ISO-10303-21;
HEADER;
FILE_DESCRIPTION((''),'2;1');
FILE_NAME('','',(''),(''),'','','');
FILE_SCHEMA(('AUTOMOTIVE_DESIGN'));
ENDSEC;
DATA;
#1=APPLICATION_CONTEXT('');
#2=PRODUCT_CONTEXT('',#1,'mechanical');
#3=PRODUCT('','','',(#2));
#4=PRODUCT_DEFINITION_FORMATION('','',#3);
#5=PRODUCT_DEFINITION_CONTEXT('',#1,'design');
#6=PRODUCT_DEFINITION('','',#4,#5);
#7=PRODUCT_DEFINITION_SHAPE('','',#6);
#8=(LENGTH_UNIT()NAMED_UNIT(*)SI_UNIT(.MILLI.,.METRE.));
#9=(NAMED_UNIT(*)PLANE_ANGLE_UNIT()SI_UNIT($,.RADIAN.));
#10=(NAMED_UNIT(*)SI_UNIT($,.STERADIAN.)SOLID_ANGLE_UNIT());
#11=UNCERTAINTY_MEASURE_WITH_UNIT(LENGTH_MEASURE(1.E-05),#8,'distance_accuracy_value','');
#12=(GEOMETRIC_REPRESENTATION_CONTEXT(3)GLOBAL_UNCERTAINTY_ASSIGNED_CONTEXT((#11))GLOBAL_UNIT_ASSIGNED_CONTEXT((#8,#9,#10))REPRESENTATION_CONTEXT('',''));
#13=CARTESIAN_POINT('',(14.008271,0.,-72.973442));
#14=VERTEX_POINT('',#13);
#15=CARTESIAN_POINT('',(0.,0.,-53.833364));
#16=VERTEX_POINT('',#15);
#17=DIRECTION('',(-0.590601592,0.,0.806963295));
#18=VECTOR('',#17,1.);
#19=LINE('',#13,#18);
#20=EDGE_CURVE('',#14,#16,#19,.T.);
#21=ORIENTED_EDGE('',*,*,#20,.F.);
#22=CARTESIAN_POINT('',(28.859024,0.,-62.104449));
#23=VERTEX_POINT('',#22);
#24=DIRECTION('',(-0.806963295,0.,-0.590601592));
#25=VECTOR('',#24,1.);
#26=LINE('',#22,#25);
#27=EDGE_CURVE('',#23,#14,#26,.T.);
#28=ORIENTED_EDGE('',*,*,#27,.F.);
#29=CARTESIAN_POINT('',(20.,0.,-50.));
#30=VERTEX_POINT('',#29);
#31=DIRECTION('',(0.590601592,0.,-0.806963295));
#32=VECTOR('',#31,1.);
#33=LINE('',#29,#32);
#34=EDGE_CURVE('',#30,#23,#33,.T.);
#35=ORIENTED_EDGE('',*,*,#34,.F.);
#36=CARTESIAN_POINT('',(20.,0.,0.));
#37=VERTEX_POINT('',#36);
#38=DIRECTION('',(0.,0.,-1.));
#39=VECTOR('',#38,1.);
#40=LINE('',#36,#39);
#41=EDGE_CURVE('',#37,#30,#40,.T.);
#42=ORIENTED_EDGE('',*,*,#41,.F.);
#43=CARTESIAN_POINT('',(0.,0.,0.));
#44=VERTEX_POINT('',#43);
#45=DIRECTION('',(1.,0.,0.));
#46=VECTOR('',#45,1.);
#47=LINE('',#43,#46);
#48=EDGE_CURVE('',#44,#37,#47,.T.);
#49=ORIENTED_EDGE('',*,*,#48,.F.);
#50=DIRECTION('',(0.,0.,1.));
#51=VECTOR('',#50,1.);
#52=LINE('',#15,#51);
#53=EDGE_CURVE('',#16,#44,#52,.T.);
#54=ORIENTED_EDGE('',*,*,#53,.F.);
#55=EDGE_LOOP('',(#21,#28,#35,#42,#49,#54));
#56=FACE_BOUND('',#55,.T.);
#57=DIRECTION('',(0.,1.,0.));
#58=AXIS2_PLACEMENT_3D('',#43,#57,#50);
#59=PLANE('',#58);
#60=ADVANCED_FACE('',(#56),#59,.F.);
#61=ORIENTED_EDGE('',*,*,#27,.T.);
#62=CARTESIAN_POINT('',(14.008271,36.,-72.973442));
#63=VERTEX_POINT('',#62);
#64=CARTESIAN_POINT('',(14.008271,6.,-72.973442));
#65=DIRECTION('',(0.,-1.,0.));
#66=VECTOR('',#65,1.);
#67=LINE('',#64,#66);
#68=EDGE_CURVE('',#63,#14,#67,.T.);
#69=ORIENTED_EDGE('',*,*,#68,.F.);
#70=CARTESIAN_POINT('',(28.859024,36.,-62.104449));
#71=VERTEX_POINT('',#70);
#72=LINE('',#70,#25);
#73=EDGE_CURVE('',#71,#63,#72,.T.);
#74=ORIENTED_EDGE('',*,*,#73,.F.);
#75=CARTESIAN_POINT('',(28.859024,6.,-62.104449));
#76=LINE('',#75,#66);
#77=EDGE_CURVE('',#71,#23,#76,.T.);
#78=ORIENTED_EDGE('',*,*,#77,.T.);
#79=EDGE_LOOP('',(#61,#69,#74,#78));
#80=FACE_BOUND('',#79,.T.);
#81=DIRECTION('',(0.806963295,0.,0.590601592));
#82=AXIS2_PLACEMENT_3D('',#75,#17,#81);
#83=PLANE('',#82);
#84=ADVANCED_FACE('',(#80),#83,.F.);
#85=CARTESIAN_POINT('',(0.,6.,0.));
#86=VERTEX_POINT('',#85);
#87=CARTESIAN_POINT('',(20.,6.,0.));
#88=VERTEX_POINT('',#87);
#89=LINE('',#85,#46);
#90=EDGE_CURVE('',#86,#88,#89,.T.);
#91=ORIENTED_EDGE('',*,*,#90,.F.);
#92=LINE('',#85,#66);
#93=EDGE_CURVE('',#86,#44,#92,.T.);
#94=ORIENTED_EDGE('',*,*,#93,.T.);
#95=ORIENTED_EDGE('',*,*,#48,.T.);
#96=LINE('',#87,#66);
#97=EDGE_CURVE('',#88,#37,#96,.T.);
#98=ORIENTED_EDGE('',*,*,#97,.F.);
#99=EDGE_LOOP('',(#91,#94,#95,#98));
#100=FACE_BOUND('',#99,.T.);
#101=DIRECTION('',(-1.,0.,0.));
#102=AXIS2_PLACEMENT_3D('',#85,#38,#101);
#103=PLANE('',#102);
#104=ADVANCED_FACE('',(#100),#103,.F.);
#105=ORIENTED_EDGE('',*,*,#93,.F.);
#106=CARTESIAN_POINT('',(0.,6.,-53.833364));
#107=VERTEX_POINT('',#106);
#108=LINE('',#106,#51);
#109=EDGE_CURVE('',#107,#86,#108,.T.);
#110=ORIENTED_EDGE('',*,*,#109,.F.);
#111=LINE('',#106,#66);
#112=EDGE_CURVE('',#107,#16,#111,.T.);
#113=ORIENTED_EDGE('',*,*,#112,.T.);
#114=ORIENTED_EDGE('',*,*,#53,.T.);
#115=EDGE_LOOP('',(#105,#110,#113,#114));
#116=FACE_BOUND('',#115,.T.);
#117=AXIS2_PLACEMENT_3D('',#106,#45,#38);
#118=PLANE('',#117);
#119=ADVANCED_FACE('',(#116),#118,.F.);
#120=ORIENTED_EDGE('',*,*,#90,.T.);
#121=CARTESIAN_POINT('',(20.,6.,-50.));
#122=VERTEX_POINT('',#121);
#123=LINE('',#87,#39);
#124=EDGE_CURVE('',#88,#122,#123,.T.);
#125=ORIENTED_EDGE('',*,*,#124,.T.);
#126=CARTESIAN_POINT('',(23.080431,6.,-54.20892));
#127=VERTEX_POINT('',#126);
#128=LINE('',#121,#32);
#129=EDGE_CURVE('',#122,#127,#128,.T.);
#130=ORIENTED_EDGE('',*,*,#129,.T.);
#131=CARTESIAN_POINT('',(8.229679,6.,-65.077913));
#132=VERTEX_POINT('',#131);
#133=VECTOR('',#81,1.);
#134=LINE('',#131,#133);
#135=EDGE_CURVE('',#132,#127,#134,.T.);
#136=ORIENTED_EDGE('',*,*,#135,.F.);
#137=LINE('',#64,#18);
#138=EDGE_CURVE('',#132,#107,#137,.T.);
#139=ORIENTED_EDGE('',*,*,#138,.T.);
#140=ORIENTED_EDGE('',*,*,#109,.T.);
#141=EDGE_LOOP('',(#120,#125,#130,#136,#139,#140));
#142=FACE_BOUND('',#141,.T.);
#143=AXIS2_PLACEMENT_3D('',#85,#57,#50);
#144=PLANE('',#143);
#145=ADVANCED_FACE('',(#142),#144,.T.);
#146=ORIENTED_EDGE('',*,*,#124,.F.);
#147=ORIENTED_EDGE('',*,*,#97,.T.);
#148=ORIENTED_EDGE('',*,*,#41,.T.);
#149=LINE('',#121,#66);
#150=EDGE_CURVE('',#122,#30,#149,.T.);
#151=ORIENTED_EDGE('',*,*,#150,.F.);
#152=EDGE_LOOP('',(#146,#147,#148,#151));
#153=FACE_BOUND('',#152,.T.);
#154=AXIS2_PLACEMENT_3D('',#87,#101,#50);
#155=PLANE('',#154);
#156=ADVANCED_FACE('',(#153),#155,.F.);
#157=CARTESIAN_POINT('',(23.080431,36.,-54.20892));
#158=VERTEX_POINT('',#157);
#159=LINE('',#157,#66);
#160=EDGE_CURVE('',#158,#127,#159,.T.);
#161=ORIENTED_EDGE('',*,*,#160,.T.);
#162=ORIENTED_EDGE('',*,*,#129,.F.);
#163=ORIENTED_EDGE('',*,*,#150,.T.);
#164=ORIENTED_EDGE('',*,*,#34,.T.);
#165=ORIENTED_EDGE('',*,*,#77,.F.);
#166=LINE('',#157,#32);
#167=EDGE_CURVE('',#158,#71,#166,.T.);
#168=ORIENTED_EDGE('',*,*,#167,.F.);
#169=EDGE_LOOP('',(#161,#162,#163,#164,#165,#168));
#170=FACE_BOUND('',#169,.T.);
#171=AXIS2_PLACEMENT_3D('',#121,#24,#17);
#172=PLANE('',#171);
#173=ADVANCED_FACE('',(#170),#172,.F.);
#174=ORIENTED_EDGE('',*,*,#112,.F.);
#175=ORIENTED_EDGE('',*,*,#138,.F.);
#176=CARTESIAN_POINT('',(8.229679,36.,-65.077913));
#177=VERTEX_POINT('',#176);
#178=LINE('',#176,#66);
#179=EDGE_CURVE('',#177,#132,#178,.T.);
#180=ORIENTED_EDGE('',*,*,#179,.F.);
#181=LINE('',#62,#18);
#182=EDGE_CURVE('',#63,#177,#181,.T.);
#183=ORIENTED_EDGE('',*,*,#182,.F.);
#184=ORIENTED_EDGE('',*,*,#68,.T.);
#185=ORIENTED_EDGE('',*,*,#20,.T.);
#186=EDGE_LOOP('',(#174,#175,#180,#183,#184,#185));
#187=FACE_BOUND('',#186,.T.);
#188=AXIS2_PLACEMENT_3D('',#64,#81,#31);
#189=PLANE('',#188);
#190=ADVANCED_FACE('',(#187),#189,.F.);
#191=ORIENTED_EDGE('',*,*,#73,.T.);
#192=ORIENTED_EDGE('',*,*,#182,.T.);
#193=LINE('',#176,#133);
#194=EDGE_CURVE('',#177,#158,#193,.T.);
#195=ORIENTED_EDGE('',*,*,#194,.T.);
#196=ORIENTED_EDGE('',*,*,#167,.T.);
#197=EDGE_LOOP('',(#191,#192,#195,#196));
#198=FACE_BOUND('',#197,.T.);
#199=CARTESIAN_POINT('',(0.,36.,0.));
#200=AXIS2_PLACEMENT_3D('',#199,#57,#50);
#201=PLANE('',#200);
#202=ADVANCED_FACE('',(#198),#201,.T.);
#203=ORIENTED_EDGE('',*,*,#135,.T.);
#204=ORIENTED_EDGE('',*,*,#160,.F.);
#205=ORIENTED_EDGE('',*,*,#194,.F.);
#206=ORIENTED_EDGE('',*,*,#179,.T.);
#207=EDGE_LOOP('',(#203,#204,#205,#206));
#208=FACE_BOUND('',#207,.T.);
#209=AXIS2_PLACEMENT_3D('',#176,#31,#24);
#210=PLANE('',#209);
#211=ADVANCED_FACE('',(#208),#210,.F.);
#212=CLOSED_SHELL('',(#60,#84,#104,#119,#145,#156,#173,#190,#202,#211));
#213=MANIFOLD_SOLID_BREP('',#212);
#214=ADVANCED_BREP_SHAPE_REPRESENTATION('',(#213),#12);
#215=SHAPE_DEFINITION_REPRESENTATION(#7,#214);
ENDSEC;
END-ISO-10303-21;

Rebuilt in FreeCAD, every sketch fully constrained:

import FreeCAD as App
import Part
import Sketcher
from FreeCAD import Vector


def add_polygon(sketch, points):
    """Adds a closed chain of lines whose ends are joined by coincident constraints."""
    first, n = sketch.GeometryCount, len(points)
    for a, b in zip(points, points[1:] + points[:1]):
        sketch.addGeometry(Part.LineSegment(App.Vector(*a, 0), App.Vector(*b, 0)), False)
    for i in range(n):
        sketch.addConstraint(Sketcher.Constraint("Coincident", first + i, 2, first + (i + 1) % n, 1))

doc = App.newDocument("Part")
body = doc.addObject("PartDesign::Body", "Body")

# Sketch on XZ plane
sketch1 = doc.addObject("Sketcher::SketchObject", "Sketch")
body.addObject(sketch1)
sketch1.AttachmentSupport = (doc.XZ_Plane, [""])
sketch1.MapMode = "FlatFace"
add_polygon(sketch1, [(0, 0), (20, 0), (20, -50), (29, -62), (14, -73), (0, -54)])  # lines 0-5
sketch1.addConstraint([
    Sketcher.Constraint("Horizontal", 0),
    Sketcher.Constraint("Vertical", 1),
    Sketcher.Constraint("Vertical", 5),
    Sketcher.Constraint("Coincident", 5, 2, -1, 1),
    Sketcher.Constraint("Perpendicular", 2, 3),
    Sketcher.Constraint("Perpendicular", 3, 4),
    Sketcher.Constraint("DistanceX", 0, 1, 0, 2, 20.0),
    Sketcher.Constraint("DistanceY", 1, 2, 1, 1, 50.0),
    Sketcher.Constraint("Distance", 2, 15.0),
    Sketcher.Constraint("DistanceY", 5, 1, 5, 2, 53.833364),
    Sketcher.Constraint("DistanceY", 2, 2, -1, 1, 62.104449),
])
pad1 = doc.addObject("PartDesign::Pad", "Pad")
body.addObject(pad1)
pad1.Profile = sketch1
pad1.Length = 6
pad1.Reversed = True

# Sketch on XZ plane
sketch2 = doc.addObject("Sketcher::SketchObject", "Sketch001")
body.addObject(sketch2)
sketch2.AttachmentSupport = (doc.XZ_Plane, [""])
sketch2.MapMode = "FlatFace"
sketch2.AttachmentOffset = App.Placement(Vector(0, 0, -6), App.Rotation())
add_polygon(sketch2, [(14, -73), (8, -65), (23, -54), (29, -62)])  # lines 0-3
sketch2.addConstraint([
    Sketcher.Constraint("Perpendicular", 0, 1),
    Sketcher.Constraint("Perpendicular", 1, 2),
    Sketcher.Constraint("Perpendicular", 2, 3),
    Sketcher.Constraint("Distance", 0, 9.784248),
    Sketcher.Constraint("DistanceX", -1, 1, 0, 2, 8.229679),
    Sketcher.Constraint("DistanceX", -1, 1, 1, 2, 23.080431),
    Sketcher.Constraint("DistanceY", 1, 2, -1, 1, 54.20892),
    Sketcher.Constraint("DistanceY", 2, 2, -1, 1, 62.104449),
])
pad2 = doc.addObject("PartDesign::Pad", "Pad001")
body.addObject(pad2)
pad2.Profile = sketch2
pad2.Length = 30
pad2.Reversed = True

doc.recompute()
